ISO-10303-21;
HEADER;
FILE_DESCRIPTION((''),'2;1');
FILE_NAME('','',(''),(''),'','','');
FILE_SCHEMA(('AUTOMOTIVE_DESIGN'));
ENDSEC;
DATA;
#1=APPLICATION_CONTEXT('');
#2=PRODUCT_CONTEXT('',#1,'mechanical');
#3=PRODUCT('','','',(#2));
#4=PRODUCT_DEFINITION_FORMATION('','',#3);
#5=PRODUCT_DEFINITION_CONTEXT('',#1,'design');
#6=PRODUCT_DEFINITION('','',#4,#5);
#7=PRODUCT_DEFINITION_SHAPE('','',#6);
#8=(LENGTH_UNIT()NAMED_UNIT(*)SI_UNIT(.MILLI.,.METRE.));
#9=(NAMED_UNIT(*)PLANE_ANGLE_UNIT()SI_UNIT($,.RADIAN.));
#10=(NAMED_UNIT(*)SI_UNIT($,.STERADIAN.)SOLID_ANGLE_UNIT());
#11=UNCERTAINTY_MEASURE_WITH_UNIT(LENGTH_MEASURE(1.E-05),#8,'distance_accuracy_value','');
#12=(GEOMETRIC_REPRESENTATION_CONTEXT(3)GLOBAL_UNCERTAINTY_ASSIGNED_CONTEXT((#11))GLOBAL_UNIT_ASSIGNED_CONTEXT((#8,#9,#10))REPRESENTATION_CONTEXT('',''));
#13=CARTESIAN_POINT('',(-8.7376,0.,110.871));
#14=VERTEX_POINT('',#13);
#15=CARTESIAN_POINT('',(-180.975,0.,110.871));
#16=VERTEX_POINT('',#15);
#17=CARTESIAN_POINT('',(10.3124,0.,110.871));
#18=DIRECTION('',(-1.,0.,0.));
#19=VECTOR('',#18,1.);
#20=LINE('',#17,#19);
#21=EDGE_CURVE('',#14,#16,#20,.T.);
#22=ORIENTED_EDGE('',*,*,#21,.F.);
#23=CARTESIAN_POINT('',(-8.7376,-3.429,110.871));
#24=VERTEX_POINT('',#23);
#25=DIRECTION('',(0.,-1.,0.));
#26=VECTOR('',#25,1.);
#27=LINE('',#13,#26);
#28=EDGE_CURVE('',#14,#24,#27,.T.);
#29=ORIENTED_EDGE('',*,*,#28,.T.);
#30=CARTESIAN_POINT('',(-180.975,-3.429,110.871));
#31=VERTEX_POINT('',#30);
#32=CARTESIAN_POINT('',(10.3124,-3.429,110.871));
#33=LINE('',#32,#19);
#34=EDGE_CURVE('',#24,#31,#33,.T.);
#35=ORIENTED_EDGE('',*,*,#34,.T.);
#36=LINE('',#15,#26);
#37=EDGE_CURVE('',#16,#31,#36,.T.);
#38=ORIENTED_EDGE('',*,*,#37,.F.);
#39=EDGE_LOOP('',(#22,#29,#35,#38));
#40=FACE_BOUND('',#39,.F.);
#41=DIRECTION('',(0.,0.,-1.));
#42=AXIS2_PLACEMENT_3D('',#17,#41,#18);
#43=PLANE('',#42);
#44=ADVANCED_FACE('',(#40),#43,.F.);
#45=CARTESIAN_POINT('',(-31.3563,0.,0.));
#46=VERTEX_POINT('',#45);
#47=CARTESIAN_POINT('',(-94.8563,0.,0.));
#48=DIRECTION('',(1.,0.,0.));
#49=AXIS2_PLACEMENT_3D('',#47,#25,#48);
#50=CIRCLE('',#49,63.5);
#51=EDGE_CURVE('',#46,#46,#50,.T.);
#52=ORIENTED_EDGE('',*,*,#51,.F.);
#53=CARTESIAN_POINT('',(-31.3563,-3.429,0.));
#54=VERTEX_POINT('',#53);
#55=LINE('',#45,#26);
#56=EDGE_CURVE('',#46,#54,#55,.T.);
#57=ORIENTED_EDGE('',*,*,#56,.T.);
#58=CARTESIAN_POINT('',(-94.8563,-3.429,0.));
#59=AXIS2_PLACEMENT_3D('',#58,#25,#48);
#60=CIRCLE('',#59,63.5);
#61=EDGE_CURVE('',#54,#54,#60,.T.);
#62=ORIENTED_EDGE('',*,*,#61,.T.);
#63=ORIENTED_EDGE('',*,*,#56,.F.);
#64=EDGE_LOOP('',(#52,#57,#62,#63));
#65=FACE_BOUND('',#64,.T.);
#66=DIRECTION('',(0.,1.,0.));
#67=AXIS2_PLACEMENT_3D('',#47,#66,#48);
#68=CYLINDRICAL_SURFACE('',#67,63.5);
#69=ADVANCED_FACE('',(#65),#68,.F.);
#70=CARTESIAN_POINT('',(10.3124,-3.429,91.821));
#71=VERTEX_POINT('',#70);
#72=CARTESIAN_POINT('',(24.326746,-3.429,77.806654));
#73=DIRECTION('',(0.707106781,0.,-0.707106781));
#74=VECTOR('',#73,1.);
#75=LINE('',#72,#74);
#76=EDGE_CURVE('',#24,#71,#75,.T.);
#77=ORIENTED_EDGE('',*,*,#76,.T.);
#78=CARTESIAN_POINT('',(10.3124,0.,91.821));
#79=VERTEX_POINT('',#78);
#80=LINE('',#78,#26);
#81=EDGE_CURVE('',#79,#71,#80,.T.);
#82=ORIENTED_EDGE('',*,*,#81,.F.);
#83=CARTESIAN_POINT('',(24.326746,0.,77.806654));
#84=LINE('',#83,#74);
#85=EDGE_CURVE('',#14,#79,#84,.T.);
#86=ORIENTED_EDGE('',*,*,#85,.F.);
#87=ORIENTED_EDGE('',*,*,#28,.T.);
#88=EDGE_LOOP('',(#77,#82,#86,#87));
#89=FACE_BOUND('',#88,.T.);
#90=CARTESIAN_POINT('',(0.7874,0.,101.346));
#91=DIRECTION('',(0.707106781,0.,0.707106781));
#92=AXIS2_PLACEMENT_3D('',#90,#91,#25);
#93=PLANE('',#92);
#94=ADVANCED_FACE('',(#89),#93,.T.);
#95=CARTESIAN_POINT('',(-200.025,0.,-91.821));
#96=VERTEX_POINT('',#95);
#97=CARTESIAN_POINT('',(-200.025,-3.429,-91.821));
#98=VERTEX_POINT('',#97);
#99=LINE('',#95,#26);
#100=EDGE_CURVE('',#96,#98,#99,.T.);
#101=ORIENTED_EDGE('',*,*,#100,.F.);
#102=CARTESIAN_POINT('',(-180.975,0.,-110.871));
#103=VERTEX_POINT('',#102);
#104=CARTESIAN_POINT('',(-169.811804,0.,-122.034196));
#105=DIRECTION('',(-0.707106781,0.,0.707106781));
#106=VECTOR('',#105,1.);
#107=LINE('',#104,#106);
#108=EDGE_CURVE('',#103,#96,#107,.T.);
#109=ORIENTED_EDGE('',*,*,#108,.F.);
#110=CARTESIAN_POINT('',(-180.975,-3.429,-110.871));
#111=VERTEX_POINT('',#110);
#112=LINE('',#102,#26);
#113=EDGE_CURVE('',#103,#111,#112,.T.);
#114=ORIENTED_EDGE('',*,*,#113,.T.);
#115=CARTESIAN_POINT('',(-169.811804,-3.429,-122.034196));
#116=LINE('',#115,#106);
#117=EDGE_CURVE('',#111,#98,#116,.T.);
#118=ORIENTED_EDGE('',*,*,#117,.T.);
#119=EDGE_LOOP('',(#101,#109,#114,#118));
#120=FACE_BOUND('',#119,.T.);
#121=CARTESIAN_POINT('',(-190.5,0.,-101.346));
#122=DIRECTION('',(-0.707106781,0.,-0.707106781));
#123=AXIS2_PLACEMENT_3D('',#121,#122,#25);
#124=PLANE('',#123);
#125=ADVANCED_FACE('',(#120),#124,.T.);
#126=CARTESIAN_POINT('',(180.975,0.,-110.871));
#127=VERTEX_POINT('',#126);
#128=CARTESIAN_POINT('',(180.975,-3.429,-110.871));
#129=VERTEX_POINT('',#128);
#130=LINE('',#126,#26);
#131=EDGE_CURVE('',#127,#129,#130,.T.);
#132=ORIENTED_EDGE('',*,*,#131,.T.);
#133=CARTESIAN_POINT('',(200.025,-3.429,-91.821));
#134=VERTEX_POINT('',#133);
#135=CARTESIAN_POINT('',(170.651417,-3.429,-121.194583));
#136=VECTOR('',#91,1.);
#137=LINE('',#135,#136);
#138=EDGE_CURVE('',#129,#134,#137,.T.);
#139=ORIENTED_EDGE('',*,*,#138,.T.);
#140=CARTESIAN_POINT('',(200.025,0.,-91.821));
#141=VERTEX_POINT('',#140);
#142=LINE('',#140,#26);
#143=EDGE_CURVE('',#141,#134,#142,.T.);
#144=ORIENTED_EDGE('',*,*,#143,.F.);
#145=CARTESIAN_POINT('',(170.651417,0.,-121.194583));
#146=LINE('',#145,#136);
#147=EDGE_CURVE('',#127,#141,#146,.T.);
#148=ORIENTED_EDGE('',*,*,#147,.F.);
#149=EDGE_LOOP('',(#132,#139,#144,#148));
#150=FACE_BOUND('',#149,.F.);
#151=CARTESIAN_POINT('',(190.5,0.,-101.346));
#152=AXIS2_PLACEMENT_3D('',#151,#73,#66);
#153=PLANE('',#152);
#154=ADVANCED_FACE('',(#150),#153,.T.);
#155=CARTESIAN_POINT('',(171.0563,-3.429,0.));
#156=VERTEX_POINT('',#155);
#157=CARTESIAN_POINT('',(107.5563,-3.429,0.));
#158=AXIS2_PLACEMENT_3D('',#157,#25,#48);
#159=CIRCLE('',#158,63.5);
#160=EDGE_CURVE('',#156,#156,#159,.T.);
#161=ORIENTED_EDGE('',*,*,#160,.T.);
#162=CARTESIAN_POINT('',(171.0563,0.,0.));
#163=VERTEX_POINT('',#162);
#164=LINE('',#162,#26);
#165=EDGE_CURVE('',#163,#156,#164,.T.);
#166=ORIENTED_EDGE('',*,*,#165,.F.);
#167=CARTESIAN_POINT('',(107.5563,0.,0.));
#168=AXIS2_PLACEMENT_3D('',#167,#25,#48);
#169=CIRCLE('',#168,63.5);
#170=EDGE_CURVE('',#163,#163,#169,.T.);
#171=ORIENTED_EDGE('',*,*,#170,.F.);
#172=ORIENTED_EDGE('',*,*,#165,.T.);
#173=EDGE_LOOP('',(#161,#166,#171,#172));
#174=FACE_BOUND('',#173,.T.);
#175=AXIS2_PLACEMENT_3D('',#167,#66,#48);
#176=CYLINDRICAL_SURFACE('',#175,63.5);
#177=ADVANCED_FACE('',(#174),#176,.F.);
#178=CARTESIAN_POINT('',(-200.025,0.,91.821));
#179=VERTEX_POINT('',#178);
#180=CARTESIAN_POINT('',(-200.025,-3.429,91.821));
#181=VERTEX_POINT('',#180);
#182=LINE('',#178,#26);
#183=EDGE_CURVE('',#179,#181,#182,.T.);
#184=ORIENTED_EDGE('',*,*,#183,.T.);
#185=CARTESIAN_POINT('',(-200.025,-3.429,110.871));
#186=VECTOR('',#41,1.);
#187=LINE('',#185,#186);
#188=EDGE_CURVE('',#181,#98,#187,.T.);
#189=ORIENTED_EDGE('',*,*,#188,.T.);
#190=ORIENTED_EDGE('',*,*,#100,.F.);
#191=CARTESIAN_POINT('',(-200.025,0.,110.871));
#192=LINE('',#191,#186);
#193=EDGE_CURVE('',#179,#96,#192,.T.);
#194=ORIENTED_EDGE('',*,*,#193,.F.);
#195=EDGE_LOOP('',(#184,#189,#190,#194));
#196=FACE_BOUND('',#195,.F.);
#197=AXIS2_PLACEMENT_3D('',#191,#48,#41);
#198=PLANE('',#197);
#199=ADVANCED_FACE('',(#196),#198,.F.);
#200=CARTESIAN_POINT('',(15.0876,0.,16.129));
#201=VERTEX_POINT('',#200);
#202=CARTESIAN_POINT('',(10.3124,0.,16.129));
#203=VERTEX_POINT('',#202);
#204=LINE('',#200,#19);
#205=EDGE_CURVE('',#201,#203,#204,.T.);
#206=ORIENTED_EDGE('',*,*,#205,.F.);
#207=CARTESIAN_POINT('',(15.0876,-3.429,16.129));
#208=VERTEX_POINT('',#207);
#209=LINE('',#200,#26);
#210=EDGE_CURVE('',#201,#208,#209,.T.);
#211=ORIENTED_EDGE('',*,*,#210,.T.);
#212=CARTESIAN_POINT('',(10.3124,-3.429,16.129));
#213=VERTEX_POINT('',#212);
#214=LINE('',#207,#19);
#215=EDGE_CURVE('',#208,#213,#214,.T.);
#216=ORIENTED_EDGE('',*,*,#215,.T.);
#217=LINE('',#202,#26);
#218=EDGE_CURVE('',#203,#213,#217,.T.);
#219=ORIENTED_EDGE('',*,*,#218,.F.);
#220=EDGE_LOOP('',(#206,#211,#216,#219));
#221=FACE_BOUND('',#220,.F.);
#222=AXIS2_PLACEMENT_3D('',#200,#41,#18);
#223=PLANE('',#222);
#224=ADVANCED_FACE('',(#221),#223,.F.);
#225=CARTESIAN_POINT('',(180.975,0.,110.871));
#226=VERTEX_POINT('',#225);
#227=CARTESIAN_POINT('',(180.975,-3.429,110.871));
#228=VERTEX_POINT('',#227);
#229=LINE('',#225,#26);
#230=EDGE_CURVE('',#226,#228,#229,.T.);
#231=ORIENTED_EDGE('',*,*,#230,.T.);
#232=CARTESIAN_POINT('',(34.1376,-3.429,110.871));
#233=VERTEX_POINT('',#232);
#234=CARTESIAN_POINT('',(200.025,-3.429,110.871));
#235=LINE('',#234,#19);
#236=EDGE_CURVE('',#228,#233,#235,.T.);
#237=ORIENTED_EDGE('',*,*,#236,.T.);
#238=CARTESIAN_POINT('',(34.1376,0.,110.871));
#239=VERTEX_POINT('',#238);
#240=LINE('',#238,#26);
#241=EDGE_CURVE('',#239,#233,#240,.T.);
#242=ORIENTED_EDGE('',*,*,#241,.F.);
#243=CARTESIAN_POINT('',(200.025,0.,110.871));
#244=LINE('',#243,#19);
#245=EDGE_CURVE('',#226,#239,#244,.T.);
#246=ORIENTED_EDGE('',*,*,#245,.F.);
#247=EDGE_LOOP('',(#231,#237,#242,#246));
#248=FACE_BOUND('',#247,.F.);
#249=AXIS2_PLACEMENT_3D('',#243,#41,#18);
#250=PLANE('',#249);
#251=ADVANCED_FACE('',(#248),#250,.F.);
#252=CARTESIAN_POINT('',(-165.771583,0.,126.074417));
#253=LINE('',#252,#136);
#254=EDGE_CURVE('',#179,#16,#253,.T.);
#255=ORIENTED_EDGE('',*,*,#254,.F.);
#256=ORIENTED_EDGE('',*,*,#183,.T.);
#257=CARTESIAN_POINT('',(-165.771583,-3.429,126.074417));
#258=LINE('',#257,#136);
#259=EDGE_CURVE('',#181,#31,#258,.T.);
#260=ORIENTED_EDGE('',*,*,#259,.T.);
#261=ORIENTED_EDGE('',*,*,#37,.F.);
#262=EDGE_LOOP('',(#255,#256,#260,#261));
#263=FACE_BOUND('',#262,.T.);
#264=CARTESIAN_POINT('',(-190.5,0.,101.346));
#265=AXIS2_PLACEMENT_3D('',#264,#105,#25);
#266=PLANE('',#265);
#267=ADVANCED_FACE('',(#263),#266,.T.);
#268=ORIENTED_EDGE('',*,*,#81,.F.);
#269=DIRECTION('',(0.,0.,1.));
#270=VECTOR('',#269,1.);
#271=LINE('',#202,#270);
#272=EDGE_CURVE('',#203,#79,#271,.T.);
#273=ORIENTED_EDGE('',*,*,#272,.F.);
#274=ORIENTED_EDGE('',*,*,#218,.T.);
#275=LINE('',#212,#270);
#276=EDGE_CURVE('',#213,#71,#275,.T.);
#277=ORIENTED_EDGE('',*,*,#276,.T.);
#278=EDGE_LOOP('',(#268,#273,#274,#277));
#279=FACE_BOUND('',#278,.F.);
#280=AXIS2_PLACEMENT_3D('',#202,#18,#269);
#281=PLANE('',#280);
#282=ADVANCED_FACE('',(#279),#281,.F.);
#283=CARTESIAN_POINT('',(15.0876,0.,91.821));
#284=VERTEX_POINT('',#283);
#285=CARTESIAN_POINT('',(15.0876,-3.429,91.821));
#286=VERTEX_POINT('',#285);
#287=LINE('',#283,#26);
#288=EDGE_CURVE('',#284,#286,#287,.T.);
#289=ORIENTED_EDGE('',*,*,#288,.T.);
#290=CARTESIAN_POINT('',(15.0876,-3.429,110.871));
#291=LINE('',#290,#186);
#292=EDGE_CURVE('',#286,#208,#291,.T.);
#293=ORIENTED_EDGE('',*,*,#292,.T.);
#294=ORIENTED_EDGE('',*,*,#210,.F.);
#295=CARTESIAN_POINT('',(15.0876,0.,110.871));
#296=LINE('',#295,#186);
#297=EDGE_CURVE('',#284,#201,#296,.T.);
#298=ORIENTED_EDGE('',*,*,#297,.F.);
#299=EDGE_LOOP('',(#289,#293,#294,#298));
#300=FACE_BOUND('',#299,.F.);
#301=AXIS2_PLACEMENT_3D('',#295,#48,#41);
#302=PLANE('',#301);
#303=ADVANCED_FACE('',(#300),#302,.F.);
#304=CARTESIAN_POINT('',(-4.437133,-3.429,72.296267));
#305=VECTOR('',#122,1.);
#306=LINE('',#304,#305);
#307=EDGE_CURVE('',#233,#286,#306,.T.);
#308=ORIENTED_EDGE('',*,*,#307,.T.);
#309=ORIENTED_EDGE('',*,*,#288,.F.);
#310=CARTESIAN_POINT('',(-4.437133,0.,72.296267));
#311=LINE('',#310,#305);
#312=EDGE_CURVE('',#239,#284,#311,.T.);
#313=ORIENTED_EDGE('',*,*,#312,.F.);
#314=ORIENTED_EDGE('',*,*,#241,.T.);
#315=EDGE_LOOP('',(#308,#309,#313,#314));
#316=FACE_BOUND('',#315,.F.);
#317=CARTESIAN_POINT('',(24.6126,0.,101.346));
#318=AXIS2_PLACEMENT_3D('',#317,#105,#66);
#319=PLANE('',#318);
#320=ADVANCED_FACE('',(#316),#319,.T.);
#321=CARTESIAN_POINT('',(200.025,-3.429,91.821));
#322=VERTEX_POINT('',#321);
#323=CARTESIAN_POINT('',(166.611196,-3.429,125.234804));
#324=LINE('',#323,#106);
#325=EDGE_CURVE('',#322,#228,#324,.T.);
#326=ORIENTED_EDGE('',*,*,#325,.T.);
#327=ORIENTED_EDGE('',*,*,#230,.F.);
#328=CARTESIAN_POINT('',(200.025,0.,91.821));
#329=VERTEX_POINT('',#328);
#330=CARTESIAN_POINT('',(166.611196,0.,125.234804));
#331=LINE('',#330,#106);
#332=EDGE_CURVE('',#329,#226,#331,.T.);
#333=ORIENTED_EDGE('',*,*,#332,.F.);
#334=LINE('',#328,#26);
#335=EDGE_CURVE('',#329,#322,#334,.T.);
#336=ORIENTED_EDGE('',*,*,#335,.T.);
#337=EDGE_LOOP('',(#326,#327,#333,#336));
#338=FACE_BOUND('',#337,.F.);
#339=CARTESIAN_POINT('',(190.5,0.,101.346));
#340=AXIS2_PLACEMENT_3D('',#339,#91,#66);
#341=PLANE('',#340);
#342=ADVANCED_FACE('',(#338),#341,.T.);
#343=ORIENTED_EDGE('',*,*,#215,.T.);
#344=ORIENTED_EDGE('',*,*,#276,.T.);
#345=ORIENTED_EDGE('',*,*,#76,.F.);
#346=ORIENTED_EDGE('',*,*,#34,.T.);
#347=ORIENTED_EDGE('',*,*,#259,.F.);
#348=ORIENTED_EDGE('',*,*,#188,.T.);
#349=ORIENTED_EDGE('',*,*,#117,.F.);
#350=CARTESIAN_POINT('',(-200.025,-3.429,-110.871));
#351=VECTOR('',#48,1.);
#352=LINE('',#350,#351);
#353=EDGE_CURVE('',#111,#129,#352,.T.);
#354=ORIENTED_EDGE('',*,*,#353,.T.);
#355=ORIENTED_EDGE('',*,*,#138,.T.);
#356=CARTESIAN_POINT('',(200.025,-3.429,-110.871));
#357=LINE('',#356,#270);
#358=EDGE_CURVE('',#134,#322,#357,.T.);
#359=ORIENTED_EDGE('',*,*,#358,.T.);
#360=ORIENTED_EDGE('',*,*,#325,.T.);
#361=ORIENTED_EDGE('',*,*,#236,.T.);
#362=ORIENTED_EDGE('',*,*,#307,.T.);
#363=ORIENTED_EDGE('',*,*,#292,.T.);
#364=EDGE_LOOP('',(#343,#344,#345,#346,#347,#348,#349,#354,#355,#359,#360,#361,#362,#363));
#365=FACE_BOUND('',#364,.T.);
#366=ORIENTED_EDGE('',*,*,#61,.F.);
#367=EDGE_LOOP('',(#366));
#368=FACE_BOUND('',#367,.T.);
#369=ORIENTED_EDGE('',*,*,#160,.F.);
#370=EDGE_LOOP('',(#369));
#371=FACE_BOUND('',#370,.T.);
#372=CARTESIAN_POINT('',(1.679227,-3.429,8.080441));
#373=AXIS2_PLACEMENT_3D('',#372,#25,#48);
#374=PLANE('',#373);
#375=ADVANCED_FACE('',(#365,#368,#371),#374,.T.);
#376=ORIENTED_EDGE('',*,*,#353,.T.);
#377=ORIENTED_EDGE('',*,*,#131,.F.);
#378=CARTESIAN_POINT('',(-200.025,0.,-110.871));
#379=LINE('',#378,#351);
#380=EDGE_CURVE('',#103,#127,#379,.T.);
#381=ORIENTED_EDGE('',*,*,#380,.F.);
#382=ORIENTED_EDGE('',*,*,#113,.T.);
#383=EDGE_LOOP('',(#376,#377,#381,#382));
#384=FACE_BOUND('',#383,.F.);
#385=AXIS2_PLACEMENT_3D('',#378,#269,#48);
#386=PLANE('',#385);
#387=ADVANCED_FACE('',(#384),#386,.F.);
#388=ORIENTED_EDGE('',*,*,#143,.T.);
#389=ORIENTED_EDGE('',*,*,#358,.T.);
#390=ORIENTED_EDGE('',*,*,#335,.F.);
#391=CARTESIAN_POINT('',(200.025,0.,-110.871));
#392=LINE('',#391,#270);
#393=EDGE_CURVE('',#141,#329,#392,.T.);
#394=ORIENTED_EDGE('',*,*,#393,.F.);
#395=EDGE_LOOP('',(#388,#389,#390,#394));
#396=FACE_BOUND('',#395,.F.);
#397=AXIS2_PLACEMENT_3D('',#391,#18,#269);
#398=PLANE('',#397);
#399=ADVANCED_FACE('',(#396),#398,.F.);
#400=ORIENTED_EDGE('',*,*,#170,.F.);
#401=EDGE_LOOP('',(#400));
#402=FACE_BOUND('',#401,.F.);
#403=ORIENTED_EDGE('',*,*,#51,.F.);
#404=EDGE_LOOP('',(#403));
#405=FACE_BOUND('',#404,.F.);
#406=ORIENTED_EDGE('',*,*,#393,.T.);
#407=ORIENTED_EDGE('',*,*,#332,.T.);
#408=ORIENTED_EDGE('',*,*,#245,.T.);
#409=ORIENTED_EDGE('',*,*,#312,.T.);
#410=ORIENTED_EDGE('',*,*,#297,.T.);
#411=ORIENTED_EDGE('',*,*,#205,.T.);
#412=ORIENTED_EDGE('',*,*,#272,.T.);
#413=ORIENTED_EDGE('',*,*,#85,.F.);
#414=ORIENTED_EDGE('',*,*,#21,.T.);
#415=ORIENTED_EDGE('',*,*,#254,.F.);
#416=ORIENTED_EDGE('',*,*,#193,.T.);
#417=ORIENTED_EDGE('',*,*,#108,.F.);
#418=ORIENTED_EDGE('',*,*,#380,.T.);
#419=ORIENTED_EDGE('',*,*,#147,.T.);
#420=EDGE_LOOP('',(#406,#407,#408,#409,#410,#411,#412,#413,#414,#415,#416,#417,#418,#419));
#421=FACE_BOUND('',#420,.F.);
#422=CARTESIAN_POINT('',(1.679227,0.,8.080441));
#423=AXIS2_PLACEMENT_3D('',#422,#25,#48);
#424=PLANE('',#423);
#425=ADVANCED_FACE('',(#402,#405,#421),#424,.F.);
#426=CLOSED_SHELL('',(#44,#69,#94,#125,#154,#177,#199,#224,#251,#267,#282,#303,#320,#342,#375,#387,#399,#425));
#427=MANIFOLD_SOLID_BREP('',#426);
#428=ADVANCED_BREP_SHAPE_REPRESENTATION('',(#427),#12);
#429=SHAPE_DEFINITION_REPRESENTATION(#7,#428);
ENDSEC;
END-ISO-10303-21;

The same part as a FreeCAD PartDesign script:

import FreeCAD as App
import Part
import Sketcher
Q = App.Units.Quantity


def edges_at(feature, points):
    """Names of the edges that pass closest to the given points."""
    edges = feature.Shape.Edges
    near = lambda p: min(range(len(edges)), key=lambda i: edges[i].distToShape(Part.Vertex(*p))[0])
    return sorted({f"Edge{near(p) + 1}" for p in points})


def add_polygon(sketch, points):
    """Adds a closed chain of lines whose ends are joined by coincident constraints."""
    first, n = sketch.GeometryCount, len(points)
    for a, b in zip(points, points[1:] + points[:1]):
        sketch.addGeometry(Part.LineSegment(App.Vector(*a, 0), App.Vector(*b, 0)), False)
    for i in range(n):
        sketch.addConstraint(Sketcher.Constraint("Coincident", first + i, 2, first + (i + 1) % n, 1))

doc = App.newDocument("Part")
body = doc.addObject("PartDesign::Body", "Body")

sketch1 = body.newObject("Sketcher::SketchObject", "Sketch")
sketch1.AttachmentSupport = (doc.getObject("XZ_Plane"), [""])
sketch1.MapMode = "FlatFace"
add_polygon(sketch1, [(-200, -110.9), (200, -110.9), (200, 110.9), (15.1, 110.9), (15.1, 16.1), (10.3, 16.1), (10.3, 110.9), (-200, 110.9)])
sketch1.addGeometry(Part.Circle(App.Vector(-94.9, 0, 0), App.Vector(0, 0, 1), 63.5), False)
sketch1.addGeometry(Part.Circle(App.Vector(107.6, 0, 0), App.Vector(0, 0, 1), 63.5), False)
sketch1.addConstraint([
    Sketcher.Constraint("Horizontal", 0),
    Sketcher.Constraint("Vertical", 1),
    Sketcher.Constraint("Horizontal", 2),
    Sketcher.Constraint("Vertical", 3),
    Sketcher.Constraint("Horizontal", 4),
    Sketcher.Constraint("Vertical", 5),
    Sketcher.Constraint("Horizontal", 6),
    Sketcher.Constraint("Vertical", 7),
    Sketcher.Constraint("Equal", 8, 9),
    Sketcher.Constraint("Symmetric", 0, 2, 6, 2, -1, 1),
    Sketcher.Constraint("PointOnObject", 8, 3, -1),
    Sketcher.Constraint("PointOnObject", 9, 3, -1),
    Sketcher.Constraint("Horizontal", 2, 2, 5, 2),
    Sketcher.Constraint("Diameter", 8, Q("5 in")),
    Sketcher.Constraint("DistanceY", 0, 2, 3, 2, Q("5 in")),
    Sketcher.Constraint("DistanceX", 0, 1, 0, 2, Q("15.75 in")),
    Sketcher.Constraint("DistanceY", 1, 1, 1, 2, Q("8.73 in")),
    Sketcher.Constraint("DistanceX", 2, 2, 2, 1, Q("7.281 in")),
    Sketcher.Constraint("DistanceX", 4, 2, 4, 1, Q("0.188 in")),
    Sketcher.Constraint("DistanceX", 8, 3, 9, 3, Q("7.969 in")),
    Sketcher.Constraint("DistanceX", 8, 3, -1, 1, Q("3.7345 in")),
])
pad1 = body.newObject("PartDesign::Pad", "Pad")
pad1.Profile = sketch1
pad1.Length = Q("0.135 in")
doc.recompute()

chamfer = body.newObject("PartDesign::Chamfer", "Chamfer")
chamfer.Base = (pad1, edges_at(pad1, [
    (-200.025, -1.714, 110.871),
    (10.312, -1.714, 110.871),
    (15.088, -1.714, 110.871),
    (200.025, -1.714, 110.871),
    (200.025, -1.714, -110.871),
    (-200.025, -1.714, -110.871),
]))
chamfer.Size = Q("0.75 in")

doc.recompute()
